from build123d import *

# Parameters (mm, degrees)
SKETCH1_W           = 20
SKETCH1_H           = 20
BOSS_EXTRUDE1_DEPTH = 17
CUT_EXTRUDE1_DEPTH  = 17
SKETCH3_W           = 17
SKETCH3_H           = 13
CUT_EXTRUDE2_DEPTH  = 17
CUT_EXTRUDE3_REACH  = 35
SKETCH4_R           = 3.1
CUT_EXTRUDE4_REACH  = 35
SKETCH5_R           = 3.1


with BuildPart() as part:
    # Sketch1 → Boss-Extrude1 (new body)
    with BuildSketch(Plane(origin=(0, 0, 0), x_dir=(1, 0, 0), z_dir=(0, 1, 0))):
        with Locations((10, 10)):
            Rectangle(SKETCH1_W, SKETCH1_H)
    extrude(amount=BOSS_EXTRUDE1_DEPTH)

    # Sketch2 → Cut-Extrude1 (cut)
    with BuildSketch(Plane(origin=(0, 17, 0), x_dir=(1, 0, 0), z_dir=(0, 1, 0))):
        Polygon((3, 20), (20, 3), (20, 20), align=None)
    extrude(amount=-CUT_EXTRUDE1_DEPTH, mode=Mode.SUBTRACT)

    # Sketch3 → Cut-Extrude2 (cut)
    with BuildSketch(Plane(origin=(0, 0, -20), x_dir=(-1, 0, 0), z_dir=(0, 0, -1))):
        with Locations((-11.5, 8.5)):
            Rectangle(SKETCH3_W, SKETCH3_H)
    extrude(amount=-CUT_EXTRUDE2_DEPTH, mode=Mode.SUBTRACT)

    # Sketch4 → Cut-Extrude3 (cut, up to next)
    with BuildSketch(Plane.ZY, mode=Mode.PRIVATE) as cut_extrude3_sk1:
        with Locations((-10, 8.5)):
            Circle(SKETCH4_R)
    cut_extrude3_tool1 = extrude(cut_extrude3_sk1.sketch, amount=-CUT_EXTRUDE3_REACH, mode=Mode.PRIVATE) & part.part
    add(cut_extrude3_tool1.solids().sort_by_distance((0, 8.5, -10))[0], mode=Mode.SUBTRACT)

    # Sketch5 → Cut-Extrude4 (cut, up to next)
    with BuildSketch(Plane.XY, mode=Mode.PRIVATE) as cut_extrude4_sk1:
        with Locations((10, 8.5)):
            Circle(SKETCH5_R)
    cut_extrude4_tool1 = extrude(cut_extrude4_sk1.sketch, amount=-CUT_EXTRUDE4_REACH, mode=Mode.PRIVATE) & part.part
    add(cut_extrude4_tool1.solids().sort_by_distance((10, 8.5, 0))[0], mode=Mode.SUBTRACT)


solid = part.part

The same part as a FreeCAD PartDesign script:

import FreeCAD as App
import Part
import Sketcher

V = App.Vector


def add_polygon(sketch, points):
    """Adds a closed chain of lines whose ends are joined by coincident constraints."""
    first, n = sketch.GeometryCount, len(points)
    for a, b in zip(points, points[1:] + points[:1]):
        sketch.addGeometry(Part.LineSegment(App.Vector(*a, 0), App.Vector(*b, 0)), False)
    for i in range(n):
        sketch.addConstraint(Sketcher.Constraint("Coincident", first + i, 2, first + (i + 1) % n, 1))

doc = App.newDocument("Part")
body = doc.addObject("PartDesign::Body", "Body")

sketch1 = body.newObject("Sketcher::SketchObject", "Sketch")
sketch1.AttachmentSupport = (doc.getObject("XZ_Plane"), [""])
sketch1.MapMode = "FlatFace"
add_polygon(sketch1, [(0, -20), (0, 0), (20, 0), (20, -20)])
sketch1.addConstraint([
    Sketcher.Constraint("Vertical", 0),
    Sketcher.Constraint("Horizontal", 1),
    Sketcher.Constraint("Vertical", 2),
    Sketcher.Constraint("Horizontal", 3),
    Sketcher.Constraint("Coincident", 0, 2, -1, 1),
    Sketcher.Constraint("Equal", 3, 0),
    Sketcher.Constraint("DistanceX", 1, 1, 1, 2, 20.0),
])
pad1 = body.newObject("PartDesign::Pad", "Pad")
pad1.Profile = sketch1
pad1.Length = 17
pad1.Reversed = True

sketch2 = body.newObject("Sketcher::SketchObject", "Sketch001")
sketch2.AttachmentSupport = (doc.getObject("XZ_Plane"), [""])
sketch2.MapMode = "FlatFace"
sketch2.AttachmentOffset = App.Placement(V(0, 0, -17), App.Rotation())
add_polygon(sketch2, [(3, -20), (20, -3), (20, -20)])
sketch2.addConstraint([
    Sketcher.Constraint("Vertical", 1),
    Sketcher.Constraint("Horizontal", 2),
    Sketcher.Constraint("Equal", 2, 1),
    Sketcher.Constraint("DistanceX", 2, 2, 2, 1, 17.0),
    Sketcher.Constraint("DistanceX", -1, 1, 0, 2, 20.0),
    Sketcher.Constraint("DistanceY", 0, 2, -1, 1, 3.0),
])
pocket1 = body.newObject("PartDesign::Pocket", "Pocket")
pocket1.Profile = sketch2
pocket1.Length = 17
pocket1.Reversed = True

sketch3 = body.newObject("Sketcher::SketchObject", "Sketch002")
sketch3.AttachmentSupport = (doc.getObject("XY_Plane"), [""])
sketch3.MapMode = "FlatFace"
sketch3.AttachmentOffset = App.Placement(V(0, 0, -20), App.Rotation())
add_polygon(sketch3, [(20, 15), (20, 2), (3, 2), (3, 15)])
sketch3.addConstraint([
    Sketcher.Constraint("Vertical", 0),
    Sketcher.Constraint("Horizontal", 1),
    Sketcher.Constraint("Vertical", 2),
    Sketcher.Constraint("Horizontal", 3),
    Sketcher.Constraint("DistanceX", 1, 2, 1, 1, 17.0),
    Sketcher.Constraint("DistanceY", 0, 2, 0, 1, 13.0),
    Sketcher.Constraint("DistanceX", -1, 1, 0, 2, 20.0),
    Sketcher.Constraint("DistanceY", -1, 1, 0, 2, 2.0),
])
pocket2 = body.newObject("PartDesign::Pocket", "Pocket001")
pocket2.Profile = sketch3
pocket2.Length = 17
pocket2.Reversed = True

sketch4 = body.newObject("Sketcher::SketchObject", "Sketch003")
sketch4.AttachmentSupport = (doc.getObject("YZ_Plane"), [""])
sketch4.MapMode = "FlatFace"
sketch4.addGeometry(Part.Circle(V(8.5, -10, 0), V(0, 0, 1), 3.1), False)
sketch4.addConstraint([
    Sketcher.Constraint("Diameter", 0, 6.2),
    Sketcher.Constraint("DistanceY", 0, 3, -1, 1, 10.0),
    Sketcher.Constraint("DistanceX", -1, 1, 0, 3, 8.5),
])
pocket3 = body.newObject("PartDesign::Pocket", "Pocket002")
pocket3.Profile = sketch4
pocket3.Type = "UpToFirst"
pocket3.Reversed = True

sketch5 = body.newObject("Sketcher::SketchObject", "Sketch004")
sketch5.AttachmentSupport = (doc.getObject("XY_Plane"), [""])
sketch5.MapMode = "FlatFace"
sketch5.addGeometry(Part.Circle(V(10, 8.5, 0), V(0, 0, 1), 3.1), False)
sketch5.addConstraint([
    Sketcher.Constraint("Diameter", 0, 6.2),
    Sketcher.Constraint("DistanceX", -1, 1, 0, 3, 10.0),
    Sketcher.Constraint("DistanceY", -1, 1, 0, 3, 8.5),
])
pocket4 = body.newObject("PartDesign::Pocket", "Pocket003")
pocket4.Profile = sketch5
pocket4.Type = "UpToFirst"

doc.recompute()
